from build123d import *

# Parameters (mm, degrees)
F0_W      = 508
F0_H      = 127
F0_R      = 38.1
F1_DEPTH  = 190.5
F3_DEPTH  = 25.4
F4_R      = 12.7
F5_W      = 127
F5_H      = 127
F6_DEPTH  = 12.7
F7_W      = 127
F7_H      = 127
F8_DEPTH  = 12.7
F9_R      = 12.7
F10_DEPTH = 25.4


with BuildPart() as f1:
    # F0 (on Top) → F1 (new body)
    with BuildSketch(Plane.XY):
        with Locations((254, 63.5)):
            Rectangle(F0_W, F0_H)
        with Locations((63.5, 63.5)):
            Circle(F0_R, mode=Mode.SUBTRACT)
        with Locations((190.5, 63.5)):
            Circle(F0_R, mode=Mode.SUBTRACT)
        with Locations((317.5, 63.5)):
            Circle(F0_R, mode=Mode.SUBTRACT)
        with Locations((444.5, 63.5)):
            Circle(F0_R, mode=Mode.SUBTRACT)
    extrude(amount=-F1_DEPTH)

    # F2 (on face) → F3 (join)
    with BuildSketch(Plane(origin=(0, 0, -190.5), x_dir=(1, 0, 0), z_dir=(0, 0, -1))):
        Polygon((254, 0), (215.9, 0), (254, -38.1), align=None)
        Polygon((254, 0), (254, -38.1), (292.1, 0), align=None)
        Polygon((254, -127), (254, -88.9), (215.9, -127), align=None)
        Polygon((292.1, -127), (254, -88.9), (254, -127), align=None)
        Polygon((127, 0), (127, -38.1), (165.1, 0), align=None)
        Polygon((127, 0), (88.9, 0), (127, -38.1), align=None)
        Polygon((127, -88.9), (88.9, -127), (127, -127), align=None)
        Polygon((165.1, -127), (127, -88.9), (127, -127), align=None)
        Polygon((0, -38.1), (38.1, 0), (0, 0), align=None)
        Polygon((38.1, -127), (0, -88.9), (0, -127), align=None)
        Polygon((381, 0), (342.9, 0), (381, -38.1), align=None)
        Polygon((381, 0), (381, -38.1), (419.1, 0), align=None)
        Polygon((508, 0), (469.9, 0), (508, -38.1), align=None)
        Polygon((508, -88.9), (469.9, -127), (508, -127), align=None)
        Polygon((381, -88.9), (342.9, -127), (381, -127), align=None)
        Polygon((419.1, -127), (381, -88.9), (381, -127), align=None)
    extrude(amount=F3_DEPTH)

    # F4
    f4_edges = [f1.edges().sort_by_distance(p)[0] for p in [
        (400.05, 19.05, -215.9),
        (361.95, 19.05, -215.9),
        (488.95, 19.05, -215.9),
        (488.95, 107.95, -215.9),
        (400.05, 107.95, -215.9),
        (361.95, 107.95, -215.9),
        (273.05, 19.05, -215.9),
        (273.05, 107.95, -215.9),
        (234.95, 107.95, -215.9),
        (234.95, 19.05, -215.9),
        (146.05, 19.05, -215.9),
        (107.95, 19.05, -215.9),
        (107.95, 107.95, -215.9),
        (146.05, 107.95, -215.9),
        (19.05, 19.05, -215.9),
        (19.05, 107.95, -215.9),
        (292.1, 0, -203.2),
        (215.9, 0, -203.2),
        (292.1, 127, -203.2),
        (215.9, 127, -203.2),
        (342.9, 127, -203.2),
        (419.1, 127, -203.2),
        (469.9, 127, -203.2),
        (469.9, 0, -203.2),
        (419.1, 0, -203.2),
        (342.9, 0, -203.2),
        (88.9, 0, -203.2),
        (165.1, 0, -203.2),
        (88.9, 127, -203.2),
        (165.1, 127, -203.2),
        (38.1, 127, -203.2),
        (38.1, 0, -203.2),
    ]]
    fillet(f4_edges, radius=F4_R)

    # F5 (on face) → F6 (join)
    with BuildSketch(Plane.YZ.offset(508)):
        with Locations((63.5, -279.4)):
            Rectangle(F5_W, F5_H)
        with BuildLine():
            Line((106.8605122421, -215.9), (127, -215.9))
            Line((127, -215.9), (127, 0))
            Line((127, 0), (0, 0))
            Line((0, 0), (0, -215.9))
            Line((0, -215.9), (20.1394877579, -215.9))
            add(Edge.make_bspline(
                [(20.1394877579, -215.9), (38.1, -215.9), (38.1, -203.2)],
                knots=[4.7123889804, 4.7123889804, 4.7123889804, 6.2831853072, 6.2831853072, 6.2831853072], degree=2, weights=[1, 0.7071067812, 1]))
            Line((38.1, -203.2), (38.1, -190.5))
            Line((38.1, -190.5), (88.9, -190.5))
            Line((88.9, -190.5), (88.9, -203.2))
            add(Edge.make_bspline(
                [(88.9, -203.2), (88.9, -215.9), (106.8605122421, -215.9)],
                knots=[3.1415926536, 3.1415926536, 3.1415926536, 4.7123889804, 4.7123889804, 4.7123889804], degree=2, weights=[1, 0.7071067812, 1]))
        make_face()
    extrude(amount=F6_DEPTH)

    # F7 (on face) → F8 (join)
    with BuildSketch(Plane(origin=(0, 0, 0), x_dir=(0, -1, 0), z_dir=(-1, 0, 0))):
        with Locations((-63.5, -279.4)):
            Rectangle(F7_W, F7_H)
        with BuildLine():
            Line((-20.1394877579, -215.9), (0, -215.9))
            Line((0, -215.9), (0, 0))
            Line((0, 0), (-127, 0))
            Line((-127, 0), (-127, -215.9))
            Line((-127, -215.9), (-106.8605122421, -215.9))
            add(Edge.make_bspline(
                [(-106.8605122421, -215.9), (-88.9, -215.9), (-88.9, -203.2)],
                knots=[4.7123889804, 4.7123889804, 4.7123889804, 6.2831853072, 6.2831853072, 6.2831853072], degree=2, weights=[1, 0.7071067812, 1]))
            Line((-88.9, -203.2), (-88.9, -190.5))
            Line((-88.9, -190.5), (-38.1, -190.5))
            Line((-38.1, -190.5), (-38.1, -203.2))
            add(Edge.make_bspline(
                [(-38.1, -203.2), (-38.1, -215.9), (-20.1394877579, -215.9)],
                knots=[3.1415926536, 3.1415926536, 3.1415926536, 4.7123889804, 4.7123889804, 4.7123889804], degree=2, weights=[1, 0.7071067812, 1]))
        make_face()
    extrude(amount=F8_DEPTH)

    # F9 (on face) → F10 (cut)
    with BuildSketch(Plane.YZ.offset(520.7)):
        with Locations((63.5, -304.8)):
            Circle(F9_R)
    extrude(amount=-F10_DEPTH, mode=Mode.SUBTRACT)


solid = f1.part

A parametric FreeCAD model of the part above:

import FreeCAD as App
import Part
import Sketcher
from FreeCAD import Vector
Q = App.Units.Quantity


def edges_at(feature, points):
    """Names of the edges that pass closest to the given points."""
    edges = feature.Shape.Edges
    near = lambda p: min(range(len(edges)), key=lambda i: edges[i].distToShape(Part.Vertex(*p))[0])
    return sorted({f"Edge{near(p) + 1}" for p in points})

doc = App.newDocument("Part")
body = doc.addObject("PartDesign::Body", "Body")

# Sketch on XY plane
sketch1 = body.newObject("Sketcher::SketchObject", "Sketch")
sketch1.AttachmentSupport = (doc.getObject("XY_Plane"), [""])
sketch1.MapMode = "FlatFace"
sketch1.addGeometry([
    Part.LineSegment(Vector(0, 127, 0), Vector(0, 0, 0)),  # 0
    Part.LineSegment(Vector(0, 0, 0), Vector(508, 0, 0)),  # 1
    Part.LineSegment(Vector(508, 0, 0), Vector(508, 127, 0)),  # 2
    Part.LineSegment(Vector(508, 127, 0), Vector(0, 127, 0)),  # 3
    Part.Circle(Vector(64, 64, 0), Vector(0, 0, 1), 38),  # 4
    Part.Circle(Vector(190, 64, 0), Vector(0, 0, 1), 38),  # 5
    Part.Circle(Vector(318, 64, 0), Vector(0, 0, 1), 38),  # 6
    Part.Circle(Vector(444, 64, 0), Vector(0, 0, 1), 38),  # 7
], False)
sketch1.addConstraint([
    Sketcher.Constraint("Coincident", 0, 2, 1, 1),
    Sketcher.Constraint("Coincident", 1, 2, 2, 1),
    Sketcher.Constraint("Coincident", 2, 2, 3, 1),
    Sketcher.Constraint("Coincident", 3, 2, 0, 1),
    Sketcher.Constraint("Vertical", 0),
    Sketcher.Constraint("Horizontal", 1),
    Sketcher.Constraint("Vertical", 2),
    Sketcher.Constraint("Horizontal", 3),
    Sketcher.Constraint("Coincident", 0, 2, -1, 1),
    Sketcher.Constraint("Equal", 4, 5),
    Sketcher.Constraint("Equal", 5, 6),
    Sketcher.Constraint("Equal", 6, 7),
    Sketcher.Constraint("Horizontal", 4, 3, 5, 3),
    Sketcher.Constraint("Horizontal", 5, 3, 6, 3),
    Sketcher.Constraint("Horizontal", 6, 3, 7, 3),
    Sketcher.Constraint("Diameter", 4, Q("3 in")),
    Sketcher.Constraint("DistanceX", 1, 1, 1, 2, Q("20 in")),
    Sketcher.Constraint("DistanceY", 0, 2, 0, 1, Q("5 in")),
    Sketcher.Constraint("DistanceX", 4, 3, 5, 3, Q("5 in")),
    Sketcher.Constraint("DistanceX", 5, 3, 6, 3, Q("5 in")),
    Sketcher.Constraint("DistanceX", 6, 3, 7, 3, Q("5 in")),
    Sketcher.Constraint("DistanceX", -1, 1, 4, 3, Q("2.5 in")),
    Sketcher.Constraint("DistanceY", -1, 1, 4, 3, Q("2.5 in")),
])
pad1 = body.newObject("PartDesign::Pad", "Pad")
pad1.Profile = sketch1
pad1.Length = Q("7.5 in")
pad1.Reversed = True

# Sketch on XY plane
sketch2 = body.newObject("Sketcher::SketchObject", "Sketch001")
sketch2.AttachmentSupport = (doc.getObject("XY_Plane"), [""])
sketch2.MapMode = "FlatFace"
sketch2.AttachmentOffset = App.Placement(Vector(0, 0, -7.5 * 25.4), App.Rotation())
sketch2.addGeometry([
    Part.LineSegment(Vector(216, 0, 0), Vector(254, 38, 0)),  # 0
    Part.LineSegment(Vector(254, 38, 0), Vector(292, 0, 0)),  # 1
    Part.LineSegment(Vector(292, 0, 0), Vector(216, 0, 0)),  # 2
    Part.LineSegment(Vector(254, 89, 0), Vector(216, 127, 0)),  # 3
    Part.LineSegment(Vector(216, 127, 0), Vector(292, 127, 0)),  # 4
    Part.LineSegment(Vector(292, 127, 0), Vector(254, 89, 0)),  # 5
    Part.LineSegment(Vector(127, 38, 0), Vector(165, 0, 0)),  # 6
    Part.LineSegment(Vector(165, 0, 0), Vector(89, 0, 0)),  # 7
    Part.LineSegment(Vector(89, 0, 0), Vector(127, 38, 0)),  # 8
    Part.LineSegment(Vector(127, 89, 0), Vector(89, 127, 0)),  # 9
    Part.LineSegment(Vector(89, 127, 0), Vector(165, 127, 0)),  # 10
    Part.LineSegment(Vector(165, 127, 0), Vector(127, 89, 0)),  # 11
    Part.LineSegment(Vector(0, 38, 0), Vector(38, 0, 0)),  # 12
    Part.LineSegment(Vector(38, 0, 0), Vector(0, 0, 0)),  # 13
    Part.LineSegment(Vector(0, 0, 0), Vector(0, 38, 0)),  # 14
    Part.LineSegment(Vector(38, 127, 0), Vector(0, 89, 0)),  # 15
    Part.LineSegment(Vector(0, 89, 0), Vector(0, 127, 0)),  # 16
    Part.LineSegment(Vector(0, 127, 0), Vector(38, 127, 0)),  # 17
    Part.LineSegment(Vector(343, 0, 0), Vector(381, 38, 0)),  # 18
    Part.LineSegment(Vector(381, 38, 0), Vector(419, 0, 0)),  # 19
    Part.LineSegment(Vector(419, 0, 0), Vector(343, 0, 0)),  # 20
    Part.LineSegment(Vector(508, 0, 0), Vector(470, 0, 0)),  # 21
    Part.LineSegment(Vector(470, 0, 0), Vector(508, 38, 0)),  # 22
    Part.LineSegment(Vector(508, 38, 0), Vector(508, 0, 0)),  # 23
    Part.LineSegment(Vector(508, 89, 0), Vector(470, 127, 0)),  # 24
    Part.LineSegment(Vector(470, 127, 0), Vector(508, 127, 0)),  # 25
    Part.LineSegment(Vector(508, 127, 0), Vector(508, 89, 0)),  # 26
    Part.LineSegment(Vector(381, 89, 0), Vector(343, 127, 0)),  # 27
    Part.LineSegment(Vector(343, 127, 0), Vector(419, 127, 0)),  # 28
    Part.LineSegment(Vector(419, 127, 0), Vector(381, 89, 0)),  # 29
], False)
sketch2.addConstraint([
    Sketcher.Constraint("Coincident", 0, 2, 1, 1),
    Sketcher.Constraint("Coincident", 1, 2, 2, 1),
    Sketcher.Constraint("Coincident", 2, 2, 0, 1),
    Sketcher.Constraint("Coincident", 3, 2, 4, 1),
    Sketcher.Constraint("Coincident", 4, 2, 5, 1),
    Sketcher.Constraint("Coincident", 5, 2, 3, 1),
    Sketcher.Constraint("Coincident", 6, 2, 7, 1),
    Sketcher.Constraint("Coincident", 7, 2, 8, 1),
    Sketcher.Constraint("Coincident", 8, 2, 6, 1),
    Sketcher.Constraint("Coincident", 9, 2, 10, 1),
    Sketcher.Constraint("Coincident", 10, 2, 11, 1),
    Sketcher.Constraint("Coincident", 11, 2, 9, 1),
    Sketcher.Constraint("Coincident", 12, 2, 13, 1),
    Sketcher.Constraint("Coincident", 13, 2, 14, 1),
    Sketcher.Constraint("Coincident", 14, 2, 12, 1),
    Sketcher.Constraint("Coincident", 15, 2, 16, 1),
    Sketcher.Constraint("Coincident", 16, 2, 17, 1),
    Sketcher.Constraint("Coincident", 17, 2, 15, 1),
    Sketcher.Constraint("Coincident", 18, 2, 19, 1),
    Sketcher.Constraint("Coincident", 19, 2, 20, 1),
    Sketcher.Constraint("Coincident", 20, 2, 18, 1),
    Sketcher.Constraint("Coincident", 21, 2, 22, 1),
    Sketcher.Constraint("Coincident", 22, 2, 23, 1),
    Sketcher.Constraint("Coincident", 23, 2, 21, 1),
    Sketcher.Constraint("Coincident", 24, 2, 25, 1),
    Sketcher.Constraint("Coincident", 25, 2, 26, 1),
    Sketcher.Constraint("Coincident", 26, 2, 24, 1),
    Sketcher.Constraint("Coincident", 27, 2, 28, 1),
    Sketcher.Constraint("Coincident", 28, 2, 29, 1),
    Sketcher.Constraint("Coincident", 29, 2, 27, 1),
    Sketcher.Constraint("Horizontal", 2),
    Sketcher.Constraint("Horizontal", 4),
    Sketcher.Constraint("Horizontal", 7),
    Sketcher.Constraint("Horizontal", 10),
    Sketcher.Constraint("Horizontal", 13),
    Sketcher.Constraint("Vertical", 14),
    Sketcher.Constraint("Vertical", 16),
    Sketcher.Constraint("Horizontal", 17),
    Sketcher.Constraint("Horizontal", 20),
    Sketcher.Constraint("Horizontal", 21),
    Sketcher.Constraint("Vertical", 23),
    Sketcher.Constraint("Horizontal", 25),
    Sketcher.Constraint("Vertical", 26),
    Sketcher.Constraint("Horizontal", 28),
    Sketcher.Constraint("Coincident", 13, 2, -1, 1),
    Sketcher.Constraint("PointOnObject", 1, 2, -1),
    Sketcher.Constraint("PointOnObject", 6, 2, -1),
    Sketcher.Constraint("PointOnObject", 15, 2, -2),
    Sketcher.Constraint("PointOnObject", 19, 2, -1),
    Sketcher.Constraint("PointOnObject", 21, 2, -1),
    Sketcher.Constraint("Perpendicular", 0, 1),
    Sketcher.Constraint("Parallel", 1, 3),
    Sketcher.Constraint("Perpendicular", 3, 5),
    Sketcher.Constraint("Perpendicular", 5, 6),
    Sketcher.Constraint("Perpendicular", 6, 8),
    Sketcher.Constraint("Perpendicular", 8, 9),
    Sketcher.Constraint("Perpendicular", 9, 11),
    Sketcher.Constraint("Perpendicular", 11, 12),
    Sketcher.Constraint("Perpendicular", 12, 15),
    Sketcher.Constraint("Parallel", 15, 18),
    Sketcher.Constraint("Perpendicular", 18, 19),
    Sketcher.Constraint("Perpendicular", 19, 22),
    Sketcher.Constraint("Perpendicular", 22, 24),
    Sketcher.Constraint("Parallel", 24, 27),
    Sketcher.Constraint("Perpendicular", 27, 29),
    Sketcher.Constraint("Horizontal", 0, 2, 8, 2),
    Sketcher.Constraint("Horizontal", 4, 2, 9, 2),
    Sketcher.Constraint("Horizontal", 5, 2, 11, 2),
    Sketcher.Constraint("Horizontal", 8, 2, 14, 2),
    Sketcher.Constraint("Horizontal", 11, 2, 15, 2),
    Sketcher.Constraint("Horizontal", 10, 2, 16, 2),
    Sketcher.Constraint("Horizontal", 14, 2, 18, 2),
    Sketcher.Constraint("Horizontal", 18, 2, 22, 2),
    Sketcher.Constraint("Horizontal", 17, 2, 24, 2),
    Sketcher.Constraint("Horizontal", 15, 2, 26, 2),
    Sketcher.Constraint("Horizontal", 25, 2, 27, 2),
    Sketcher.Constraint("Horizontal", 26, 2, 29, 2),
    Sketcher.Constraint("Vertical", 2, 2, 3, 2),
    Sketcher.Constraint("Vertical", 1, 2, 4, 2),
    Sketcher.Constraint("Vertical", 0, 2, 5, 2),
    Sketcher.Constraint("Vertical", 7, 2, 9, 2),
    Sketcher.Constraint("Vertical", 21, 2, 24, 2),
    Sketcher.Constraint("Vertical", 20, 2, 27, 2),
    Sketcher.Constraint("DistanceX", 2, 2, 2, 1, Q("3 in")),
    Sketcher.Constraint("DistanceX", -1, 1, 0, 2, Q("10 in")),
    Sketcher.Constraint("DistanceY", -1, 1, 3, 2, Q("5 in")),
    Sketcher.Constraint("DistanceX", -1, 1, 8, 2, Q("5 in")),
    Sketcher.Constraint("DistanceX", -1, 1, 18, 2, Q("15 in")),
    Sketcher.Constraint("DistanceX", -1, 1, 22, 2, Q("20 in")),
])
pad2 = body.newObject("PartDesign::Pad", "Pad001")
pad2.Profile = sketch2
pad2.Length = Q("1 in")
pad2.Reversed = True
doc.recompute()

fillet = body.newObject("PartDesign::Fillet", "Fillet")
fillet.Base = (pad2, edges_at(pad2, [
    (400.05, 19.05, -215.9),
    (361.95, 19.05, -215.9),
    (488.95, 19.05, -215.9),
    (488.95, 107.95, -215.9),
    (400.05, 107.95, -215.9),
    (361.95, 107.95, -215.9),
    (273.05, 19.05, -215.9),
    (273.05, 107.95, -215.9),
    (234.95, 107.95, -215.9),
    (234.95, 19.05, -215.9),
    (146.05, 19.05, -215.9),
    (107.95, 19.05, -215.9),
    (107.95, 107.95, -215.9),
    (146.05, 107.95, -215.9),
    (19.05, 19.05, -215.9),
    (19.05, 107.95, -215.9),
    (292.1, 0, -203.2),
    (215.9, 0, -203.2),
    (292.1, 127, -203.2),
    (215.9, 127, -203.2),
    (342.9, 127, -203.2),
    (419.1, 127, -203.2),
    (469.9, 127, -203.2),
    (469.9, 0, -203.2),
    (419.1, 0, -203.2),
    (342.9, 0, -203.2),
    (88.9, 0, -203.2),
    (165.1, 0, -203.2),
    (88.9, 127, -203.2),
    (165.1, 127, -203.2),
    (38.1, 127, -203.2),
    (38.1, 0, -203.2),
]))
fillet.Radius = Q("0.5 in")

# Sketch on YZ plane
sketch3 = body.newObject("Sketcher::SketchObject", "Sketch002")
sketch3.AttachmentSupport = (doc.getObject("YZ_Plane"), [""])
sketch3.MapMode = "FlatFace"
sketch3.AttachmentOffset = App.Placement(Vector(0, 0, 20 * 25.4), App.Rotation())
sketch3.addGeometry([
    Part.LineSegment(Vector(0, -342.9, 0), Vector(127, -342.9, 0)),  # 0
    Part.LineSegment(Vector(127, -342.9, 0), Vector(127, 0, 0)),  # 1
    Part.LineSegment(Vector(127, 0, 0), Vector(0, 0, 0)),  # 2
    Part.LineSegment(Vector(0, 0, 0), Vector(0, -342.9, 0)),  # 3
    Part.LineSegment(Vector(106.860512, -215.9, 0), Vector(20.139488, -215.9, 0)),  # 4
    Part.BSplineCurve([Vector(20.139488, -215.9, 0), Vector(38.1, -215.9, 0), Vector(38.1, -203.2, 0)], [3, 3], [4.71238898, 6.283185307], False, 2, [1, 0.707106781, 1], False),  # 5
    Part.LineSegment(Vector(38.1, -203.2, 0), Vector(38.1, -190.5, 0)),  # 6
    Part.LineSegment(Vector(38.1, -190.5, 0), Vector(88.9, -190.5, 0)),  # 7
    Part.LineSegment(Vector(88.9, -190.5, 0), Vector(88.9, -203.2, 0)),  # 8
    Part.BSplineCurve([Vector(88.9, -203.2, 0), Vector(88.9, -215.9, 0), Vector(106.860512, -215.9, 0)], [3, 3], [3.141592654, 4.71238898], False, 2, [1, 0.707106781, 1], False),  # 9
], False)
sketch3.addConstraint([
    Sketcher.Constraint("Block", 5),
    Sketcher.Constraint("Block", 9),
    Sketcher.Constraint("Coincident", 0, 2, 1, 1),
    Sketcher.Constraint("Coincident", 1, 2, 2, 1),
    Sketcher.Constraint("Coincident", 2, 2, 3, 1),
    Sketcher.Constraint("Coincident", 3, 2, 0, 1),
    Sketcher.Constraint("Coincident", 4, 2, 5, 1),
    Sketcher.Constraint("Coincident", 5, 2, 6, 1),
    Sketcher.Constraint("Coincident", 6, 2, 7, 1),
    Sketcher.Constraint("Coincident", 7, 2, 8, 1),
    Sketcher.Constraint("Coincident", 8, 2, 9, 1),
    Sketcher.Constraint("Coincident", 9, 2, 4, 1),
    Sketcher.Constraint("Horizontal", 0),
    Sketcher.Constraint("Vertical", 1),
    Sketcher.Constraint("Horizontal", 2),
    Sketcher.Constraint("Vertical", 3),
    Sketcher.Constraint("Vertical", 6),
    Sketcher.Constraint("Horizontal", 7),
    Sketcher.Constraint("Vertical", 8),
    Sketcher.Constraint("Coincident", 2, 2, -1, 1),
    Sketcher.Constraint("DistanceX", 0, 1, 0, 2, Q("5 in")),
    Sketcher.Constraint("DistanceY", 1, 1, 1, 2, Q("13.5 in")),
    Sketcher.Constraint("DistanceY", 6, 1, 6, 2, Q("0.5 in")),
])
pad3 = body.newObject("PartDesign::Pad", "Pad002")
pad3.Profile = sketch3
pad3.Length = Q("0.5 in")

# Sketch on YZ plane
sketch4 = body.newObject("Sketcher::SketchObject", "Sketch003")
sketch4.AttachmentSupport = (doc.getObject("YZ_Plane"), [""])
sketch4.MapMode = "FlatFace"
sketch4.addGeometry([
    Part.LineSegment(Vector(127, -342.9, 0), Vector(0, -342.9, 0)),  # 0
    Part.LineSegment(Vector(0, -342.9, 0), Vector(0, 0, 0)),  # 1
    Part.LineSegment(Vector(0, 0, 0), Vector(127, 0, 0)),  # 2
    Part.LineSegment(Vector(127, 0, 0), Vector(127, -342.9, 0)),  # 3
    Part.LineSegment(Vector(20.139488, -215.9, 0), Vector(106.860512, -215.9, 0)),  # 4
    Part.BSplineCurve([Vector(106.860512, -215.9, 0), Vector(88.9, -215.9, 0), Vector(88.9, -203.2, 0)], [3, 3], [4.71238898, 6.283185307], False, 2, [1, 0.707106781, 1], False),  # 5
    Part.LineSegment(Vector(88.9, -203.2, 0), Vector(88.9, -190.5, 0)),  # 6
    Part.LineSegment(Vector(88.9, -190.5, 0), Vector(38.1, -190.5, 0)),  # 7
    Part.LineSegment(Vector(38.1, -190.5, 0), Vector(38.1, -203.2, 0)),  # 8
    Part.BSplineCurve([Vector(38.1, -203.2, 0), Vector(38.1, -215.9, 0), Vector(20.139488, -215.9, 0)], [3, 3], [3.141592654, 4.71238898], False, 2, [1, 0.707106781, 1], False),  # 9
], False)
sketch4.addConstraint([
    Sketcher.Constraint("Block", 5),
    Sketcher.Constraint("Block", 9),
    Sketcher.Constraint("Coincident", 0, 2, 1, 1),
    Sketcher.Constraint("Coincident", 1, 2, 2, 1),
    Sketcher.Constraint("Coincident", 2, 2, 3, 1),
    Sketcher.Constraint("Coincident", 3, 2, 0, 1),
    Sketcher.Constraint("Coincident", 4, 2, 5, 1),
    Sketcher.Constraint("Coincident", 5, 2, 6, 1),
    Sketcher.Constraint("Coincident", 6, 2, 7, 1),
    Sketcher.Constraint("Coincident", 7, 2, 8, 1),
    Sketcher.Constraint("Coincident", 8, 2, 9, 1),
    Sketcher.Constraint("Coincident", 9, 2, 4, 1),
    Sketcher.Constraint("Horizontal", 0),
    Sketcher.Constraint("Vertical", 1),
    Sketcher.Constraint("Horizontal", 2),
    Sketcher.Constraint("Vertical", 3),
    Sketcher.Constraint("Vertical", 6),
    Sketcher.Constraint("Horizontal", 7),
    Sketcher.Constraint("Vertical", 8),
    Sketcher.Constraint("Coincident", 1, 2, -1, 1),
    Sketcher.Constraint("DistanceX", 0, 2, 0, 1, Q("5 in")),
    Sketcher.Constraint("DistanceY", 1, 1, 1, 2, Q("13.5 in")),
    Sketcher.Constraint("DistanceY", 6, 1, 6, 2, Q("0.5 in")),
])
pad4 = body.newObject("PartDesign::Pad", "Pad003")
pad4.Profile = sketch4
pad4.Length = Q("0.5 in")
pad4.Reversed = True

# Sketch on YZ plane
sketch5 = body.newObject("Sketcher::SketchObject", "Sketch004")
sketch5.AttachmentSupport = (doc.getObject("YZ_Plane"), [""])
sketch5.MapMode = "FlatFace"
sketch5.AttachmentOffset = App.Placement(Vector(0, 0, 20.5 * 25.4), App.Rotation())
sketch5.addGeometry(Part.Circle(Vector(64, -305, 0), Vector(0, 0, 1), 13), False)
sketch5.addConstraint([
    Sketcher.Constraint("Diameter", 0, Q("1 in")),
    Sketcher.Constraint("DistanceY", 0, 3, -1, 1, Q("12 in")),
    Sketcher.Constraint("DistanceX", -1, 1, 0, 3, Q("2.5 in")),
])
pocket1 = body.newObject("PartDesign::Pocket", "Pocket")
pocket1.Profile = sketch5
pocket1.Length = Q("1 in")

doc.recompute()
